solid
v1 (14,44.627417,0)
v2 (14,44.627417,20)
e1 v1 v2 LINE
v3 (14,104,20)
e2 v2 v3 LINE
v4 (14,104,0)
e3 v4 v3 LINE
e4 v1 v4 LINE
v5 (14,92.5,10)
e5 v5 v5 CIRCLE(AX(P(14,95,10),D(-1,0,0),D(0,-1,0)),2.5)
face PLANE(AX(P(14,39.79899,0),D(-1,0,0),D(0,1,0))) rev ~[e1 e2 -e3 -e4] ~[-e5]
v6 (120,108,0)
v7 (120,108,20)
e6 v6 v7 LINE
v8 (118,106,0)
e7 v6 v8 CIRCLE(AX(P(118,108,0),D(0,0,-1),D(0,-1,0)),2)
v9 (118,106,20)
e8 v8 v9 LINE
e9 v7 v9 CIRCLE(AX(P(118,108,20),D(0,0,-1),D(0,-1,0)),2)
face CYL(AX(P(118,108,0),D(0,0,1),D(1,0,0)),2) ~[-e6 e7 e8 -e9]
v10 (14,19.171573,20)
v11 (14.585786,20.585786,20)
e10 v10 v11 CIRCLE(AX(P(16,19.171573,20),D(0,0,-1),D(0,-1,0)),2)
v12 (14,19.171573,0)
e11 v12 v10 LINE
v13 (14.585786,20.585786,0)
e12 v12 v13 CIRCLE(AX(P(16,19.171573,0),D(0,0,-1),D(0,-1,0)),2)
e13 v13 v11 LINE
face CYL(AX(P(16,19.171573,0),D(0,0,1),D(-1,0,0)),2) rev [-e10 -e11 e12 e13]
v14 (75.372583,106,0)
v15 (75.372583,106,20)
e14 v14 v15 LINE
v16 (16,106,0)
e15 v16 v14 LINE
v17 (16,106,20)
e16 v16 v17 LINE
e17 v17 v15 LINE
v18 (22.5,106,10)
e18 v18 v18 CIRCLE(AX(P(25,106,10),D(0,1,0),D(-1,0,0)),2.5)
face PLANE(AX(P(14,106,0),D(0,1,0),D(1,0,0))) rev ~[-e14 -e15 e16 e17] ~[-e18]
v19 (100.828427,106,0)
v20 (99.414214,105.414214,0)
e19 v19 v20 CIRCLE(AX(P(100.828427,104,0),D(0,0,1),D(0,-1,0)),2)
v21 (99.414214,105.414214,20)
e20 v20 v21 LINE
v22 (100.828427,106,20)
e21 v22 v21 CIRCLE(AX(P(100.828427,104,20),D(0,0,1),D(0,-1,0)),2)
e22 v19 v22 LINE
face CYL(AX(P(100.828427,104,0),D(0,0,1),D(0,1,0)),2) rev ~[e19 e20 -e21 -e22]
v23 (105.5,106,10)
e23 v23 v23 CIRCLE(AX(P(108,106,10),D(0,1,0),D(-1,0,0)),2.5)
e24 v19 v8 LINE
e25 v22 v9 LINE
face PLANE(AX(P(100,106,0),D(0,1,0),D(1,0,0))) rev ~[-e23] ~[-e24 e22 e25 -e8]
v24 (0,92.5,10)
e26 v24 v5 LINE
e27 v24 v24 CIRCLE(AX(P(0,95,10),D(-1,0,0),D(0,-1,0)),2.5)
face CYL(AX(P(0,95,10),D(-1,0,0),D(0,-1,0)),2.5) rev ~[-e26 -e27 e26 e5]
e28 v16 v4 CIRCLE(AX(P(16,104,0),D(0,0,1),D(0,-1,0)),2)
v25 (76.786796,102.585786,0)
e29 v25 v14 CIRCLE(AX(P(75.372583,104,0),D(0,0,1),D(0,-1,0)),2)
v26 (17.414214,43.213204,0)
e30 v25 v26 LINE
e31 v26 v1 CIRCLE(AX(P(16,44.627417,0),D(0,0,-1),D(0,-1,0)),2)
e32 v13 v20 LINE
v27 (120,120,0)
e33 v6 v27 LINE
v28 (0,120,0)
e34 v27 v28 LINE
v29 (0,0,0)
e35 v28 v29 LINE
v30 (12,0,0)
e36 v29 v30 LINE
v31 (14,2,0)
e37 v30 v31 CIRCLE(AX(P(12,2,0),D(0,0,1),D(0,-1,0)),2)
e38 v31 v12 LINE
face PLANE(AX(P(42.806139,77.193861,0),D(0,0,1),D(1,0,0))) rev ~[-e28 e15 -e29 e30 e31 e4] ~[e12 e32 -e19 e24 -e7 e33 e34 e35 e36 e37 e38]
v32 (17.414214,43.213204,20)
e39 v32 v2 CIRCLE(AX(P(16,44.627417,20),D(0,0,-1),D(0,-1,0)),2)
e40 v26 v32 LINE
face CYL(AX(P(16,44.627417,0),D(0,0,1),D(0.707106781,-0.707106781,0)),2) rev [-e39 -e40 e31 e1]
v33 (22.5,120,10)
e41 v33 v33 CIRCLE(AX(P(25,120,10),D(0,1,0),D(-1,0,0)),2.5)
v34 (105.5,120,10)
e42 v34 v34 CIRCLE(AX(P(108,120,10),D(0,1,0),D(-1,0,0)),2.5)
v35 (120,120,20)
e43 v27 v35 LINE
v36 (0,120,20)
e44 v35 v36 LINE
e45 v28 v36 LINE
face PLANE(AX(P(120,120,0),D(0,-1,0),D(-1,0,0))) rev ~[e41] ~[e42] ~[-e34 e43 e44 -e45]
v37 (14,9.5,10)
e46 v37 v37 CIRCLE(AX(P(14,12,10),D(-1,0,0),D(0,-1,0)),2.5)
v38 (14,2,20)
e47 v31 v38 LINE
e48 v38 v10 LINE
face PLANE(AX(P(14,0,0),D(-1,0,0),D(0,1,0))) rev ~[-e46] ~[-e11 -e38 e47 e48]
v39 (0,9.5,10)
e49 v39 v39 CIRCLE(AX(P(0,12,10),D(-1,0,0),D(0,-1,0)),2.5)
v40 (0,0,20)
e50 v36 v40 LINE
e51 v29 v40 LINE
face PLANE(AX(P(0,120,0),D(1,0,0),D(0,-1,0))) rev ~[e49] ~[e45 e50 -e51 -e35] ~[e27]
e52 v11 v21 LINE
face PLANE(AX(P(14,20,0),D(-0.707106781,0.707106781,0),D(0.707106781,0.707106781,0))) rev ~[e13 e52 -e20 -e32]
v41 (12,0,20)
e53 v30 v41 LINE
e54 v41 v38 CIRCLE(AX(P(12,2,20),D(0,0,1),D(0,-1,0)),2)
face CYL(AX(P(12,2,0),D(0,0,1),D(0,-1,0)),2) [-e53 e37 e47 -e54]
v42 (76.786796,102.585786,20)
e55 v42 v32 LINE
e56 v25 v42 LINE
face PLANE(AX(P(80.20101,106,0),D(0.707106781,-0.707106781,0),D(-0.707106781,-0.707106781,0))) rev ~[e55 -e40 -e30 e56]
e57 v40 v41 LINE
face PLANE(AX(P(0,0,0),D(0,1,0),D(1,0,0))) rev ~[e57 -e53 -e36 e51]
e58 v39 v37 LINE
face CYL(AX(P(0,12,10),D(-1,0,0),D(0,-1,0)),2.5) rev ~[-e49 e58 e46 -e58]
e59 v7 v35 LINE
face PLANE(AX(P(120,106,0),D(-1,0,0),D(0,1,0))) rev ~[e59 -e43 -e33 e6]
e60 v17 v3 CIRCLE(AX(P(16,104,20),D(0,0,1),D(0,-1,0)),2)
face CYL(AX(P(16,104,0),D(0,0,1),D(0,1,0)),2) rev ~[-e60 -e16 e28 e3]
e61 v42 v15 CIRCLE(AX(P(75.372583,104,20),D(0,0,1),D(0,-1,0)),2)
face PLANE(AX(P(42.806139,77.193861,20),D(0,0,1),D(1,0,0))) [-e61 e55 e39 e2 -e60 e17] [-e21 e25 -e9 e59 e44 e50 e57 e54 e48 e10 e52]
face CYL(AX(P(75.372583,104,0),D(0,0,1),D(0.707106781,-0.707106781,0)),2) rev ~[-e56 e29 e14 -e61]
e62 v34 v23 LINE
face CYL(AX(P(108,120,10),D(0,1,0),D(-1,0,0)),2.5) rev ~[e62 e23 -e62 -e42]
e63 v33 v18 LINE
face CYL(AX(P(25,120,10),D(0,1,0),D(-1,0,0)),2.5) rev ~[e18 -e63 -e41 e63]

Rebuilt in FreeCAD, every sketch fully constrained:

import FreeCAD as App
import Part
import Sketcher

V = App.Vector
Q = App.Units.Quantity


def edges_at(feature, points):
    """Names of the edges that pass closest to the given points."""
    edges = feature.Shape.Edges
    near = lambda p: min(range(len(edges)), key=lambda i: edges[i].distToShape(Part.Vertex(*p))[0])
    return sorted({f"Edge{near(p) + 1}" for p in points})


def add_polygon(sketch, points):
    """Adds a closed chain of lines whose ends are joined by coincident constraints."""
    first, n = sketch.GeometryCount, len(points)
    for a, b in zip(points, points[1:] + points[:1]):
        sketch.addGeometry(Part.LineSegment(App.Vector(*a, 0), App.Vector(*b, 0)), False)
    for i in range(n):
        sketch.addConstraint(Sketcher.Constraint("Coincident", first + i, 2, first + (i + 1) % n, 1))

doc = App.newDocument("Part")
body = doc.addObject("PartDesign::Body", "Body")

# Sketch on XY plane
sketch1 = doc.addObject("Sketcher::SketchObject", "Sketch")
body.addObject(sketch1)
sketch1.AttachmentSupport = (doc.XY_Plane, [""])
sketch1.MapMode = "FlatFace"
add_polygon(sketch1, [(0, 120), (0, 0), (14, 0), (14, 20), (100, 106), (120, 106), (120, 120)])  # lines 0-6
add_polygon(sketch1, [(80, 106), (14, 40), (14, 106)])  # lines 7-9
sketch1.addConstraint([
    Sketcher.Constraint("Vertical", 0),
    Sketcher.Constraint("Horizontal", 1),
    Sketcher.Constraint("Vertical", 2),
    Sketcher.Constraint("Horizontal", 4),
    Sketcher.Constraint("Vertical", 5),
    Sketcher.Constraint("Horizontal", 6),
    Sketcher.Constraint("Vertical", 8),
    Sketcher.Constraint("Horizontal", 9),
    Sketcher.Constraint("Coincident", 0, 2, -1, 1),
    Sketcher.Constraint("Parallel", 3, 7),
    Sketcher.Constraint("Horizontal", 4, 2, 8, 2),
    Sketcher.Constraint("Vertical", 2, 2, 7, 2),
    Sketcher.Constraint("Equal", 6, 0),
    Sketcher.Constraint("Equal", 4, 2),
    Sketcher.Constraint("Equal", 1, 5),
    Sketcher.Constraint("DistanceX", 1, 1, 1, 2, Q("14 mm")),
    Sketcher.Constraint("DistanceX", 4, 1, 4, 2, Q("20 mm")),
    Sketcher.Constraint("DistanceX", 6, 2, 6, 1, Q("120 mm")),
    Sketcher.Constraint("DistanceX", 9, 1, 9, 2, Q("66.20101 mm")),
])
pad1 = doc.addObject("PartDesign::Pad", "Pad")
body.addObject(pad1)
pad1.Profile = sketch1
pad1.Length = 20

# Sketch on YZ plane
sketch2 = doc.addObject("Sketcher::SketchObject", "Sketch001")
body.addObject(sketch2)
sketch2.AttachmentSupport = (doc.YZ_Plane, [""])
sketch2.MapMode = "FlatFace"
sketch2.addGeometry([
    Part.Circle(V(12, 10, 0), V(0, 0, 1), 2.5),
    Part.Circle(V(95, 10, 0), V(0, 0, 1), 2.5),
], False)
sketch2.addConstraint([
    Sketcher.Constraint("Equal", 0, 1),
    Sketcher.Constraint("Horizontal", 0, 3, 1, 3),
    Sketcher.Constraint("Diameter", 0, Q("5 mm")),
    Sketcher.Constraint("DistanceX", -1, 1, 0, 3, Q("12 mm")),
    Sketcher.Constraint("DistanceY", -1, 1, 0, 3, Q("10 mm")),
    Sketcher.Constraint("DistanceX", -1, 1, 1, 3, Q("95 mm")),
])
pocket1 = doc.addObject("PartDesign::Pocket", "Pocket")
body.addObject(pocket1)
pocket1.Profile = sketch2
pocket1.Length = 25
pocket1.Reversed = True

# Sketch on XZ plane
sketch3 = doc.addObject("Sketcher::SketchObject", "Sketch002")
body.addObject(sketch3)
sketch3.AttachmentSupport = (doc.XZ_Plane, [""])
sketch3.MapMode = "FlatFace"
sketch3.AttachmentOffset = App.Placement(V(0, 0, -120), App.Rotation())
sketch3.addGeometry([
    Part.Circle(V(108, 10, 0), V(0, 0, 1), 2.5),
    Part.Circle(V(25, 10, 0), V(0, 0, 1), 2.5),
], False)
sketch3.addConstraint([
    Sketcher.Constraint("Equal", 0, 1),
    Sketcher.Constraint("Horizontal", 0, 3, 1, 3),
    Sketcher.Constraint("Diameter", 0, Q("5 mm")),
    Sketcher.Constraint("DistanceX", -1, 1, 0, 3, Q("108 mm")),
    Sketcher.Constraint("DistanceY", -1, 1, 0, 3, Q("10 mm")),
    Sketcher.Constraint("DistanceX", -1, 1, 1, 3, Q("25 mm")),
])
pocket2 = doc.addObject("PartDesign::Pocket", "Pocket001")
body.addObject(pocket2)
pocket2.Profile = sketch3
pocket2.Length = 25
pocket2.Reversed = True
doc.recompute()

fillet = doc.addObject("PartDesign::Fillet", "Fillet")
body.addObject(fillet)
fillet.Base = (pocket2, edges_at(pocket2, [
    (14, 39.799, 10),
    (14, 106, 10),
    (80.201, 106, 10),
    (14, 20, 10),
    (100, 106, 10),
    (120, 106, 10),
    (14, 0, 10),
]))
fillet.Radius = 2

doc.recompute()
